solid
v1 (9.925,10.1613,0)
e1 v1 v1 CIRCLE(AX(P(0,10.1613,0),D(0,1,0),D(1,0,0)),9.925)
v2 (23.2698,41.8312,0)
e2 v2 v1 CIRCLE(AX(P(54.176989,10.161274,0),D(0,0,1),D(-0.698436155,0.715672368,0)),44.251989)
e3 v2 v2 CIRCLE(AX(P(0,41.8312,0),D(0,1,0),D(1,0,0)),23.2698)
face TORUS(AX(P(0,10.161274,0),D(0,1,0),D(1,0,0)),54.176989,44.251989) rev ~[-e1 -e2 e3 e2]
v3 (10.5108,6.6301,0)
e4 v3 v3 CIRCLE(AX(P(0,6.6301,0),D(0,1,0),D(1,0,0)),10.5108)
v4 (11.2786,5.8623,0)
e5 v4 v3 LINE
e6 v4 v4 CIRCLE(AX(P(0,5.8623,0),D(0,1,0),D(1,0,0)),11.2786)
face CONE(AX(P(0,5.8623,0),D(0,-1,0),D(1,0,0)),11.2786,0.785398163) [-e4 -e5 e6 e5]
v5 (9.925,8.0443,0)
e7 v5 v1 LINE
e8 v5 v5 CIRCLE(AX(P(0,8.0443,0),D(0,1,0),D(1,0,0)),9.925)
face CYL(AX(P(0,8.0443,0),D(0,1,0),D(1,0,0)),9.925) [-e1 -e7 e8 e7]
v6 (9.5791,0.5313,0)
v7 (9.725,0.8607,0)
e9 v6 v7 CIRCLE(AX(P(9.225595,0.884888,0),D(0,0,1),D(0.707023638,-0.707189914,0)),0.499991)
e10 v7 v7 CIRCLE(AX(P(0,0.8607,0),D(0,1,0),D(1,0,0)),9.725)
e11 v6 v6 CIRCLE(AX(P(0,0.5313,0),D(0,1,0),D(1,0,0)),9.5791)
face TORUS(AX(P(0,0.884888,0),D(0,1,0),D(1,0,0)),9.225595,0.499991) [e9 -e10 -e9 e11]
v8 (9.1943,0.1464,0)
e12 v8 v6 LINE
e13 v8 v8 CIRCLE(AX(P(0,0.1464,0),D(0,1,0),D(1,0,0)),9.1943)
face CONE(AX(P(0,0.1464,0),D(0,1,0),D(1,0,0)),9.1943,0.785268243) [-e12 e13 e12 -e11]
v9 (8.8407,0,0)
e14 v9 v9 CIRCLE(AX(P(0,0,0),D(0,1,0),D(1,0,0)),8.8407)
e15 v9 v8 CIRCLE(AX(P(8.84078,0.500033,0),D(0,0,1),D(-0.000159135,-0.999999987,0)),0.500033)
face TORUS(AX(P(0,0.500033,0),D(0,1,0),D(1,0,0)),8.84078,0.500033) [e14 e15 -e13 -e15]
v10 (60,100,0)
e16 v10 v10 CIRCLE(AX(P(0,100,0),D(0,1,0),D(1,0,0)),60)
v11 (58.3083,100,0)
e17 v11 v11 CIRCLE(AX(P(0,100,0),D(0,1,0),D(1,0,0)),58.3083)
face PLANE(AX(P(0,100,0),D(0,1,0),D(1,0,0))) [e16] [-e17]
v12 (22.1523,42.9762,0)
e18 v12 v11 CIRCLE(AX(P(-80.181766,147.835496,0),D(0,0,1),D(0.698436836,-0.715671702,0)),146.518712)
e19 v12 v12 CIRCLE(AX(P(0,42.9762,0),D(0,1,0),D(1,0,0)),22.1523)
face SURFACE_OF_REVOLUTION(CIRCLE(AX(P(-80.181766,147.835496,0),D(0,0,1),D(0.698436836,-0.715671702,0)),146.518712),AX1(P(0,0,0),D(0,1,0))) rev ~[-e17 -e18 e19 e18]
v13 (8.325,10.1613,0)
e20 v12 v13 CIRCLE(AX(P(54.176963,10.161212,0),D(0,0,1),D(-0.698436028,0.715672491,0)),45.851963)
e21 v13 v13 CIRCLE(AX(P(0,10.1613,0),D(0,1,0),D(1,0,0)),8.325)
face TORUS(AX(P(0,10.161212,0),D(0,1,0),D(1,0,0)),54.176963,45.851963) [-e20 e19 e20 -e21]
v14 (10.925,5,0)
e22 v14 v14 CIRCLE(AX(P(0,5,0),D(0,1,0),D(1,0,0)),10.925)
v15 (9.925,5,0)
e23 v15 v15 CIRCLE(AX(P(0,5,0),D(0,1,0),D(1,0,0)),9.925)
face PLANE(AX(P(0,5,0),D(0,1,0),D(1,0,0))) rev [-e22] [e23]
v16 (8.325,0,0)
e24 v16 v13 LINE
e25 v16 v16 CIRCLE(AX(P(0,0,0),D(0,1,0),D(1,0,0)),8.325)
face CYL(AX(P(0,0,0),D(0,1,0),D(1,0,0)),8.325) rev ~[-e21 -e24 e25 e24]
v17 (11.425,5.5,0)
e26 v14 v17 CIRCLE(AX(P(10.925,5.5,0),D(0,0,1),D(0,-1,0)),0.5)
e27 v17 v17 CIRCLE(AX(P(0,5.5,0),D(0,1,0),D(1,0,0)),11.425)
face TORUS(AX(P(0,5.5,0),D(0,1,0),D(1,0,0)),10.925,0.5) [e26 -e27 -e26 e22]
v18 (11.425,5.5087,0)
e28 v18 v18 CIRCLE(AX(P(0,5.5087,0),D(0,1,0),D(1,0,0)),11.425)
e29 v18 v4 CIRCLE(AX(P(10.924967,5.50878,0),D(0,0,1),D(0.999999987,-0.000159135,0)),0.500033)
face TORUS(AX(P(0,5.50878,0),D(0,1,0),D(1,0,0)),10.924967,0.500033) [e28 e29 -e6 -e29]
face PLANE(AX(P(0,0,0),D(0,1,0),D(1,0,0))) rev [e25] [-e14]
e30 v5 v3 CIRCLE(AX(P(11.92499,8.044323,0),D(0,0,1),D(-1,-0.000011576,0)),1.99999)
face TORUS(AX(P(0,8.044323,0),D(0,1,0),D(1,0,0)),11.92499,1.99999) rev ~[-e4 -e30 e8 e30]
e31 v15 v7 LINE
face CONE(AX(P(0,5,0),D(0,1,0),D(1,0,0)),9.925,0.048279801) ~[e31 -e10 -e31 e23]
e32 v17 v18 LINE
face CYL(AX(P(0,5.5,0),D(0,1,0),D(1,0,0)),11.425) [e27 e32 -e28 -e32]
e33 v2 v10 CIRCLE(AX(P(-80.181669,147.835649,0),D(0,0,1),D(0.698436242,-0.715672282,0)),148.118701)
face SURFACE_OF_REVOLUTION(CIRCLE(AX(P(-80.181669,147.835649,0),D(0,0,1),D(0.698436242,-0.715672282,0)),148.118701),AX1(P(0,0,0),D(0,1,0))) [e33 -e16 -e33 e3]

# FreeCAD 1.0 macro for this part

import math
import FreeCAD as App
import Part
import Sketcher
from FreeCAD import Vector
Q = App.Units.Quantity

doc = App.newDocument("Part")
body = doc.addObject("PartDesign::Body", "Body")

sketch1 = doc.addObject("Sketcher::SketchObject", "Sketch")
body.addObject(sketch1)
sketch1.AttachmentSupport = (doc.XY_Plane, [""])
sketch1.MapMode = "FlatFace"
sketch1.addGeometry([
    Part.ArcOfCircle(Part.Circle(Vector(11.925, 8.0443, 0), Vector(0, 0, 1), 2), math.radians(180), math.radians(225)),
    Part.LineSegment(Vector(9.925, 8.0443, 0), Vector(9.925, 10.1613, 0)),
    Part.ArcOfCircle(Part.Circle(Vector(54.177, 10.1613, 0), Vector(0, 0, 1), 44.251978), math.radians(134.301704), math.radians(180)),
    Part.ArcOfCircle(Part.Circle(Vector(-80.1817, 147.8356, 0), Vector(0, 0, 1), 148.118688), math.radians(-45.6983), math.radians(-18.841693)),
    Part.LineSegment(Vector(60, 100, 0), Vector(58.3083, 100, 0)),
    Part.ArcOfCircle(Part.Circle(Vector(-80.180877, 147.834933, 0), Vector(0, 0, 1), 146.517688), math.radians(-45.69837), math.radians(-19.055197)),
    Part.ArcOfCircle(Part.Circle(Vector(54.177, 10.1613, 0), Vector(0, 0, 1), 45.851926), math.radians(134.301771), math.radians(180)),
    Part.LineSegment(Vector(8.325, 10.1613, 0), Vector(8.325, 0, 0)),
    Part.LineSegment(Vector(8.325, 0, 0), Vector(8.8407, 0, 0)),
    Part.ArcOfCircle(Part.Circle(Vector(8.8407, 0.5, 0), Vector(0, 0, 1), 0.5), math.radians(-90), math.radians(-45)),
    Part.LineSegment(Vector(9.1943, 0.1464, 0), Vector(9.5791, 0.5313, 0)),
    Part.ArcOfCircle(Part.Circle(Vector(9.2256, 0.8849, 0), Vector(0, 0, 1), 0.499995), math.radians(-45.008103), math.radians(-2.774277)),
    Part.LineSegment(Vector(9.725, 0.8607, 0), Vector(9.925, 5, 0)),
    Part.LineSegment(Vector(9.925, 5, 0), Vector(10.925, 5, 0)),
    Part.ArcOfCircle(Part.Circle(Vector(10.925, 5.5, 0), Vector(0, 0, 1), 0.5), math.radians(-90), math.radians(0)),
    Part.LineSegment(Vector(11.425, 5.5, 0), Vector(11.425, 5.5087, 0)),
    Part.ArcOfCircle(Part.Circle(Vector(10.925, 5.5087, 0), Vector(0, 0, 1), 0.5), math.radians(0), math.radians(45)),
    Part.LineSegment(Vector(11.2786, 5.8623, 0), Vector(10.5108, 6.6301, 0)),
], False)
sketch1.addConstraint([
    Sketcher.Constraint("Tangent", 0, 1, 1, 1),
    Sketcher.Constraint("Tangent", 1, 2, 2, 2),
    Sketcher.Constraint("Tangent", 2, 1, 3, 1),
    Sketcher.Constraint("Coincident", 3, 2, 4, 1),
    Sketcher.Constraint("Coincident", 4, 2, 5, 2),
    Sketcher.Constraint("Tangent", 5, 1, 6, 1),
    Sketcher.Constraint("Tangent", 6, 2, 7, 1),
    Sketcher.Constraint("Coincident", 7, 2, 8, 1),
    Sketcher.Constraint("Tangent", 8, 2, 9, 1),
    Sketcher.Constraint("Tangent", 9, 2, 10, 1),
    Sketcher.Constraint("Tangent", 10, 2, 11, 1),
    Sketcher.Constraint("Tangent", 11, 2, 12, 1),
    Sketcher.Constraint("Coincident", 12, 2, 13, 1),
    Sketcher.Constraint("Tangent", 13, 2, 14, 1),
    Sketcher.Constraint("Tangent", 14, 2, 15, 1),
    Sketcher.Constraint("Tangent", 15, 2, 16, 1),
    Sketcher.Constraint("Tangent", 16, 2, 17, 1),
    Sketcher.Constraint("Tangent", 17, 2, 0, 2),
    Sketcher.Constraint("Vertical", 1),
    Sketcher.Constraint("Horizontal", 4),
    Sketcher.Constraint("Vertical", 7),
    Sketcher.Constraint("Horizontal", 8),
    Sketcher.Constraint("Horizontal", 13),
    Sketcher.Constraint("Vertical", 15),
    Sketcher.Constraint("Coincident", 6, 3, 2, 3),
    Sketcher.Constraint("Equal", 9, 11),
    Sketcher.Constraint("Equal", 11, 14),
    Sketcher.Constraint("Equal", 14, 16),
    Sketcher.Constraint("PointOnObject", 7, 2, -1),
    Sketcher.Constraint("Perpendicular", 10, 17),
    Sketcher.Constraint("Vertical", 1, 2, 12, 2),
    Sketcher.Constraint("Radius", 0, Q("2 mm")),
    Sketcher.Constraint("Radius", 9, Q("0.5 mm")),
    Sketcher.Constraint("DistanceY", -1, 1, 3, 2, Q("100 mm")),
    Sketcher.Constraint("DistanceY", -1, 1, 12, 2, Q("5 mm")),
    Sketcher.Constraint("DistanceX", 11, 2, 12, 2, Q("0.2 mm")),
    Sketcher.Constraint("DistanceX", 12, 2, 14, 2, Q("1.5 mm")),
    Sketcher.Constraint("Angle", 17, Q("135 deg")),
    Sketcher.Constraint("DistanceX", -1, 1, 3, 2, Q("60 mm")),
    Sketcher.Constraint("Radius", 2, Q("44.252 mm")),
    Sketcher.Constraint("Radius", 6, Q("45.852 mm")),
    Sketcher.Constraint("Radius", 3, Q("148.1187 mm")),
    Sketcher.Constraint("Radius", 5, Q("146.5177 mm")),
    Sketcher.Constraint("DistanceY", 1, 1, 1, 2, Q("2.117 mm")),
    Sketcher.Constraint("DistanceY", -1, 1, 17, 2, Q("6.63 mm")),
    Sketcher.Constraint("DistanceY", 11, 3, 5, 3, Q("146.95 mm")),
    Sketcher.Constraint("DistanceY", 1, 2, 2, 1, Q("31.67 mm")),
    Sketcher.Constraint("DistanceX", 4, 2, 4, 1, Q("1.6917 mm")),
])
revolution = doc.addObject("PartDesign::Revolution", "Revolution")
body.addObject(revolution)
revolution.Profile = sketch1
revolution.ReferenceAxis = (sketch1, ["V_Axis"])
revolution.Angle = 360

doc.recompute()
